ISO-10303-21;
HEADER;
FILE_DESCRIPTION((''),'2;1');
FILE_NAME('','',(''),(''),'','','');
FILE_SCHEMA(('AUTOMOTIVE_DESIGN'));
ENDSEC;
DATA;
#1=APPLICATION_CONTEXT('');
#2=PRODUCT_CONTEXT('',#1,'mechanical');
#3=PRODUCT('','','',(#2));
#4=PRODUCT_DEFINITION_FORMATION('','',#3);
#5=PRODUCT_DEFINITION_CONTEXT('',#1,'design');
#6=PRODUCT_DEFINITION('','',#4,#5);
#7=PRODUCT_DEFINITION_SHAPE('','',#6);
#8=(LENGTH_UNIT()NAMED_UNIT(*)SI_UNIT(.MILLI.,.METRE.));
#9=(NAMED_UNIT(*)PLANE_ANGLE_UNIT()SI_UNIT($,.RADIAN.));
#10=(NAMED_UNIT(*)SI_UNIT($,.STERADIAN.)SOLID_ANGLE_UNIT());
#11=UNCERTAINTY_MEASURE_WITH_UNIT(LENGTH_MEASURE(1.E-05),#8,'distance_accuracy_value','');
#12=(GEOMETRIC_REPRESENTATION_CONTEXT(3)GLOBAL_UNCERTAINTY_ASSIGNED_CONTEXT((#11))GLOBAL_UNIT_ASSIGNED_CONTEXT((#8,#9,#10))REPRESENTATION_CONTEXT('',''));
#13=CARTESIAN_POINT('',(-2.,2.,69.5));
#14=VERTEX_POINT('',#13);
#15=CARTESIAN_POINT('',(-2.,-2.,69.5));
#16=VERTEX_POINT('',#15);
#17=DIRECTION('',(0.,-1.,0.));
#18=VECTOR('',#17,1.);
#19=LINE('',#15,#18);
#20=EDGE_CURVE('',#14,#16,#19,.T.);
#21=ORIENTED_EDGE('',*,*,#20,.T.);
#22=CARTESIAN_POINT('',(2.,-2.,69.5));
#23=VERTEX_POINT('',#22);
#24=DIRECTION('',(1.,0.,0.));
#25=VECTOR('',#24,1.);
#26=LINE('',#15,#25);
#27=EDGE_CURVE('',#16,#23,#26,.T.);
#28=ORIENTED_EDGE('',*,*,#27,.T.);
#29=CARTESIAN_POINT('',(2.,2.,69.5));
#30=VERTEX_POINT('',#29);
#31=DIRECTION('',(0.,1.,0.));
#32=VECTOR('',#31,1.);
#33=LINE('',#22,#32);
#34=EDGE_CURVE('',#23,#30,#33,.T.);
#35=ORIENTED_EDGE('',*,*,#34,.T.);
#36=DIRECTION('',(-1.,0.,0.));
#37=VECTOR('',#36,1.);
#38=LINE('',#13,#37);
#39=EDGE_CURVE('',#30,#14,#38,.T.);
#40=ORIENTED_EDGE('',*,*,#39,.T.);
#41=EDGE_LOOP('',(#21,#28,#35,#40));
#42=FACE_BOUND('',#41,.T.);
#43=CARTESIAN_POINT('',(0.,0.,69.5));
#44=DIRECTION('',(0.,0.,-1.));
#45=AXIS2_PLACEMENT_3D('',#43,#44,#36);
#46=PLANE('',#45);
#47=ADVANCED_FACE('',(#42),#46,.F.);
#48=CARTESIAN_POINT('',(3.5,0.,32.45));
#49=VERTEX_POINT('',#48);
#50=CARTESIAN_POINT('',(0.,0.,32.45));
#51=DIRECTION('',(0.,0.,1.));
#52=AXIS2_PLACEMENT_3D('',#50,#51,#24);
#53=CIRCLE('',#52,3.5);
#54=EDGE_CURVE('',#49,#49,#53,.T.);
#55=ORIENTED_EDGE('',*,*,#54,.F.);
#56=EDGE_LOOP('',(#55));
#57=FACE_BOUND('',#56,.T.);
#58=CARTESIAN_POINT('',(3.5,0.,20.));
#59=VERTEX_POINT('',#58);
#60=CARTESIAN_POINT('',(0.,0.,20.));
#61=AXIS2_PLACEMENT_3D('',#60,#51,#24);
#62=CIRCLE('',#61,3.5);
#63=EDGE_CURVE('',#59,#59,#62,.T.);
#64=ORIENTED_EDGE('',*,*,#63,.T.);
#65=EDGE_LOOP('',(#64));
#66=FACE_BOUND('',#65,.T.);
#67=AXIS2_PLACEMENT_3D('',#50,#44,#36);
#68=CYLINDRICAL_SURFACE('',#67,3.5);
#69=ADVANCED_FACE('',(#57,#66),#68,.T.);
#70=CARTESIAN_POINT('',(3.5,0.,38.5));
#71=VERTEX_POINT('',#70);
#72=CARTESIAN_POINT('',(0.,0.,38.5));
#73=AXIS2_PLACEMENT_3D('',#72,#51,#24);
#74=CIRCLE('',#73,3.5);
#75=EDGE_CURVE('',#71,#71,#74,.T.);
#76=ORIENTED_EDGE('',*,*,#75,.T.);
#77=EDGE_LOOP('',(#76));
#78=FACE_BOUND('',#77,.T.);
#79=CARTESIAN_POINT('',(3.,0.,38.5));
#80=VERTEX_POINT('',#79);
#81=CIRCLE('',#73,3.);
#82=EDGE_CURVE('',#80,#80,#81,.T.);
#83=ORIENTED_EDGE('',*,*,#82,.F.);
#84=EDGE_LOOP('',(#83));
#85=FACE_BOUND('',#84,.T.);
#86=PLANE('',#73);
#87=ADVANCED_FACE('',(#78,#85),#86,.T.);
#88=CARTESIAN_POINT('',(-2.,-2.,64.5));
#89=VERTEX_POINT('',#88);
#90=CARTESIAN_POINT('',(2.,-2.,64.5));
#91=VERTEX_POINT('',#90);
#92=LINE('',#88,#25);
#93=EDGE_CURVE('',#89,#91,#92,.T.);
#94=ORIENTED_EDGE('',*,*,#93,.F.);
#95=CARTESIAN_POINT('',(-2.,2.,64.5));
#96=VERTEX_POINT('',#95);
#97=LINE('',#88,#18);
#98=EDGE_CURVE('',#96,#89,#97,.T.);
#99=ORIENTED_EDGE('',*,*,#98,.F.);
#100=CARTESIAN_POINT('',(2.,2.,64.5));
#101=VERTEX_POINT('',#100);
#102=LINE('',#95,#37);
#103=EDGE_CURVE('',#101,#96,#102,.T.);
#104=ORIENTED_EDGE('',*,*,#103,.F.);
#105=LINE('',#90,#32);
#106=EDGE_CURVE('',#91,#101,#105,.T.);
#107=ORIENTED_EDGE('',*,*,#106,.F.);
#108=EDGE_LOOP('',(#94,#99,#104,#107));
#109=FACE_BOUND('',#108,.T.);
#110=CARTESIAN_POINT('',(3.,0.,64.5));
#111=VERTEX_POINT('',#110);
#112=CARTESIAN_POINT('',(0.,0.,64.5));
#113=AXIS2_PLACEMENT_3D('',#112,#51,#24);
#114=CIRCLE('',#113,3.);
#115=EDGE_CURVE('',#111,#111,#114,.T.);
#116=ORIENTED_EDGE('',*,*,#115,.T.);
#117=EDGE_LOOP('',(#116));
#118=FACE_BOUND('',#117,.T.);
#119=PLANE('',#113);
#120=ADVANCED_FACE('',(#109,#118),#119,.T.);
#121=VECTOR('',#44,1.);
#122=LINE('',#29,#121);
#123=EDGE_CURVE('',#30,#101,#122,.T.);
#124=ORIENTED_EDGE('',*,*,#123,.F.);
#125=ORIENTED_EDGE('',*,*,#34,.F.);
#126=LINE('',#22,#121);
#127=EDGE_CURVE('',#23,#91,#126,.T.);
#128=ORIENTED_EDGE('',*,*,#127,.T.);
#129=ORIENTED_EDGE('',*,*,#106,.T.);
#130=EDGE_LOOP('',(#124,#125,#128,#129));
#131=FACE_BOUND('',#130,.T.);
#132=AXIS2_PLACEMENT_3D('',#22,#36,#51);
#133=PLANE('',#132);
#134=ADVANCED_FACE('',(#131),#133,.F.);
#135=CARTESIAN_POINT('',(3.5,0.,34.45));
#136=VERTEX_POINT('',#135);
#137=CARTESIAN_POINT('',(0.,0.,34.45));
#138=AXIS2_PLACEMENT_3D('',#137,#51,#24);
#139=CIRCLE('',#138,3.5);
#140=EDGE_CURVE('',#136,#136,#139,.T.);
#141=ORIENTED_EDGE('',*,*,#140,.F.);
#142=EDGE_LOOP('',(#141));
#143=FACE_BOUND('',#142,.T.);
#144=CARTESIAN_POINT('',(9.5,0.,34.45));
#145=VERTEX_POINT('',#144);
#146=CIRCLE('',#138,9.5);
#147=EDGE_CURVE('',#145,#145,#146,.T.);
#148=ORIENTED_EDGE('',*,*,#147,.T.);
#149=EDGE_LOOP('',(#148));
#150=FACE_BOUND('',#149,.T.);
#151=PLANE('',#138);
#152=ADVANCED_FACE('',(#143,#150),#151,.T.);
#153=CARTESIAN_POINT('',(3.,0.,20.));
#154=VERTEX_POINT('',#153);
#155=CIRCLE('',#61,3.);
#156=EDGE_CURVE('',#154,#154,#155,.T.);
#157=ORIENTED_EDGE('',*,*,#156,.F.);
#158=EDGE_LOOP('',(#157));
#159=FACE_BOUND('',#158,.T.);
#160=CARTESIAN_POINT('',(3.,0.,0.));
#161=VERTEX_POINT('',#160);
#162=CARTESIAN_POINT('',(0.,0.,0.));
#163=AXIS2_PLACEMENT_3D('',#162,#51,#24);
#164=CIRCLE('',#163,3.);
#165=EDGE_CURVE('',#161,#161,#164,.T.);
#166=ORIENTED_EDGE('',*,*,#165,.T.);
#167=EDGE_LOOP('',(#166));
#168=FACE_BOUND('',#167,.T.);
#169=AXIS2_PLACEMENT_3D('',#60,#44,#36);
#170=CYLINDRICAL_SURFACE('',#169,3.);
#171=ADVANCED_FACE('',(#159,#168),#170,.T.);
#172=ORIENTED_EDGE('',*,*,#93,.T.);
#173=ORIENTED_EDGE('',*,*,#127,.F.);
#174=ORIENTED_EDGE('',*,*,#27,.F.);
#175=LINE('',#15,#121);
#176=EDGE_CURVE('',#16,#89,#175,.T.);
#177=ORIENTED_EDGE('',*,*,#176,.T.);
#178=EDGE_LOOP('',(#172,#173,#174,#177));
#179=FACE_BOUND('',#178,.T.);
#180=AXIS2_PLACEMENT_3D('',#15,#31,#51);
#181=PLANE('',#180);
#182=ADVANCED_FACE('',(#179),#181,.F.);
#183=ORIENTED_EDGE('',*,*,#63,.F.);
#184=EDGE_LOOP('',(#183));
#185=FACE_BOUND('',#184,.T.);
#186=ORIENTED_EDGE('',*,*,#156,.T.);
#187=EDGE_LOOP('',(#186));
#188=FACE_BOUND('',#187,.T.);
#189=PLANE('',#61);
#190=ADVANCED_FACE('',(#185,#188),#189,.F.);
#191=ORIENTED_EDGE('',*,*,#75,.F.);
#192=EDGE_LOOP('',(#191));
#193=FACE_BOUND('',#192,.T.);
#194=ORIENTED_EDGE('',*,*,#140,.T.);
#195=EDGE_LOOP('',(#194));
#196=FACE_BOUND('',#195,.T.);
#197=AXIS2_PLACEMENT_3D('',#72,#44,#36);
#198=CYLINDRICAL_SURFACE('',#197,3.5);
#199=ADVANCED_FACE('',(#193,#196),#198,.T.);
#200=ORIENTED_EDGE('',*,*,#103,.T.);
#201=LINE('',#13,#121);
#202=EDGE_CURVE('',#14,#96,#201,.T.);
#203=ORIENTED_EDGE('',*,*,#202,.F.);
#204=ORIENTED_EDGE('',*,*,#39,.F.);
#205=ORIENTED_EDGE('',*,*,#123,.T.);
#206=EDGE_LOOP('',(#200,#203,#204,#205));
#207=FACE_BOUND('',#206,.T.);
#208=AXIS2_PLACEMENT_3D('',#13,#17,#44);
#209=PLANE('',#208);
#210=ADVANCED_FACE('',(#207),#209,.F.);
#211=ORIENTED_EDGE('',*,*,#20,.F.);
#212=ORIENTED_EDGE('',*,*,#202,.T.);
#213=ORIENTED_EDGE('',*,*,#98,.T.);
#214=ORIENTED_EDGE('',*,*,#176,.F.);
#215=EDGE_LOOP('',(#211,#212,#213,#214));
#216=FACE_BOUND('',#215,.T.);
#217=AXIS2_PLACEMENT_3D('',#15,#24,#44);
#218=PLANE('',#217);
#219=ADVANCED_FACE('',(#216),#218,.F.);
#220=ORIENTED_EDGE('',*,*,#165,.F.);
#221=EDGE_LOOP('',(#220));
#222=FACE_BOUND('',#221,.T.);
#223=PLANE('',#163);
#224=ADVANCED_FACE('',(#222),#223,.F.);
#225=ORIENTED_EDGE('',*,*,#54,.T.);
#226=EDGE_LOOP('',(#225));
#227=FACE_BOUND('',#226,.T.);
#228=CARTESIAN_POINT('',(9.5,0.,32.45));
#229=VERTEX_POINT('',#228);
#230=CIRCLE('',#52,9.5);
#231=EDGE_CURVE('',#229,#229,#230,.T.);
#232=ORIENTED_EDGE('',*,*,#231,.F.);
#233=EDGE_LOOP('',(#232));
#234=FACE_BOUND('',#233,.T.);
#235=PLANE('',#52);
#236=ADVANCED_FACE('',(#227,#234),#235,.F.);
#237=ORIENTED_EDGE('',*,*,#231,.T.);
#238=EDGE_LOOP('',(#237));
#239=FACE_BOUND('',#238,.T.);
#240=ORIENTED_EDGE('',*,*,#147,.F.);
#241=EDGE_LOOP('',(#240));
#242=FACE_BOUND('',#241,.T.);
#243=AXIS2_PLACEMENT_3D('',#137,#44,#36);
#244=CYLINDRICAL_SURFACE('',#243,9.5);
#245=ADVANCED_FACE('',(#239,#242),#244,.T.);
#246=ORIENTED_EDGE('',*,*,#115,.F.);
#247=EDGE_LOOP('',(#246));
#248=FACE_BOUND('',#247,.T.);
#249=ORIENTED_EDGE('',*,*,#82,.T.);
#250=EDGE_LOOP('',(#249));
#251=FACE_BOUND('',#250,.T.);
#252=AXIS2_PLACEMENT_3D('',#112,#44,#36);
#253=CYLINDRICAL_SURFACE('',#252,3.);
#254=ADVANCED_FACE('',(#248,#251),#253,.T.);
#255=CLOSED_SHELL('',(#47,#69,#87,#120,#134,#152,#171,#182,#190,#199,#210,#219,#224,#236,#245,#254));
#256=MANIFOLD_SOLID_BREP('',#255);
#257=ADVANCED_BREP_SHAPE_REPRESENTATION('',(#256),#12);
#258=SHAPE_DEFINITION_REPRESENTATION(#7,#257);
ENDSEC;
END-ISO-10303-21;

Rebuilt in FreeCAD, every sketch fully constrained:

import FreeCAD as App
import Part
import Sketcher

doc = App.newDocument("Part")
body = doc.addObject("PartDesign::Body", "Body")

sketch1 = body.newObject("Sketcher::SketchObject", "Sketch")
sketch1.AttachmentSupport = (doc.getObject("XY_Plane"), [""])
sketch1.MapMode = "FlatFace"
sketch1.addGeometry(Part.Circle(App.Vector(0, 0, 0), App.Vector(0, 0, 1), 3), False)
sketch1.addConstraint(Sketcher.Constraint("Coincident", 0, 3, -1, 1))
sketch1.addConstraint(Sketcher.Constraint("Diameter", 0, 6.0))
pad1 = body.newObject("PartDesign::Pad", "Pad")
pad1.Profile = sketch1
pad1.Length = 20

sketch2 = body.newObject("Sketcher::SketchObject", "Sketch001")
sketch2.AttachmentSupport = (doc.getObject("XY_Plane"), [""])
sketch2.MapMode = "FlatFace"
sketch2.AttachmentOffset = App.Placement(App.Vector(0, 0, 20), App.Rotation())
sketch2.addGeometry(Part.Circle(App.Vector(0, 0, 0), App.Vector(0, 0, 1), 3.5), False)
sketch2.addConstraint(Sketcher.Constraint("Coincident", 0, 3, -1, 1))
sketch2.addConstraint(Sketcher.Constraint("Diameter", 0, 7.0))
pad2 = body.newObject("PartDesign::Pad", "Pad001")
pad2.Profile = sketch2
pad2.Length = 12.45

sketch3 = body.newObject("Sketcher::SketchObject", "Sketch002")
sketch3.AttachmentSupport = (doc.getObject("XY_Plane"), [""])
sketch3.MapMode = "FlatFace"
sketch3.AttachmentOffset = App.Placement(App.Vector(0, 0, 32.45), App.Rotation())
sketch3.addGeometry(Part.Circle(App.Vector(0, 0, 0), App.Vector(0, 0, 1), 10), False)
sketch3.addConstraint(Sketcher.Constraint("Coincident", 0, 3, -1, 1))
sketch3.addConstraint(Sketcher.Constraint("Diameter", 0, 19.0))
pad3 = body.newObject("PartDesign::Pad", "Pad002")
pad3.Profile = sketch3
pad3.Length = 2

sketch4 = body.newObject("Sketcher::SketchObject", "Sketch003")
sketch4.AttachmentSupport = (doc.getObject("XY_Plane"), [""])
sketch4.MapMode = "FlatFace"
sketch4.AttachmentOffset = App.Placement(App.Vector(0, 0, 34.45), App.Rotation())
sketch4.addGeometry(Part.Circle(App.Vector(0, 0, 0), App.Vector(0, 0, 1), 3.5), False)
sketch4.addConstraint(Sketcher.Constraint("Coincident", 0, 3, -1, 1))
sketch4.addConstraint(Sketcher.Constraint("Diameter", 0, 7.0))
pad4 = body.newObject("PartDesign::Pad", "Pad003")
pad4.Profile = sketch4
pad4.Length = 4.05

sketch5 = body.newObject("Sketcher::SketchObject", "Sketch004")
sketch5.AttachmentSupport = (doc.getObject("XY_Plane"), [""])
sketch5.MapMode = "FlatFace"
sketch5.AttachmentOffset = App.Placement(App.Vector(0, 0, 38.5), App.Rotation())
sketch5.addGeometry(Part.Circle(App.Vector(0, 0, 0), App.Vector(0, 0, 1), 3), False)
sketch5.addConstraint(Sketcher.Constraint("Coincident", 0, 3, -1, 1))
sketch5.addConstraint(Sketcher.Constraint("Diameter", 0, 6.0))
pad5 = body.newObject("PartDesign::Pad", "Pad004")
pad5.Profile = sketch5
pad5.Length = 26

sketch6 = body.newObject("Sketcher::SketchObject", "Sketch005")
sketch6.AttachmentSupport = (doc.getObject("XY_Plane"), [""])
sketch6.MapMode = "FlatFace"
sketch6.AttachmentOffset = App.Placement(App.Vector(0, 0, 64.5), App.Rotation())
sketch6.addGeometry(Part.LineSegment(App.Vector(-2, 2, 0), App.Vector(-2, -2, 0)), False)
sketch6.addGeometry(Part.LineSegment(App.Vector(-2, -2, 0), App.Vector(2, -2, 0)), False)
sketch6.addGeometry(Part.LineSegment(App.Vector(2, -2, 0), App.Vector(2, 2, 0)), False)
sketch6.addGeometry(Part.LineSegment(App.Vector(2, 2, 0), App.Vector(-2, 2, 0)), False)
sketch6.addConstraint(Sketcher.Constraint("Coincident", 0, 2, 1, 1))
sketch6.addConstraint(Sketcher.Constraint("Coincident", 1, 2, 2, 1))
sketch6.addConstraint(Sketcher.Constraint("Coincident", 2, 2, 3, 1))
sketch6.addConstraint(Sketcher.Constraint("Coincident", 3, 2, 0, 1))
sketch6.addConstraint(Sketcher.Constraint("Vertical", 0))
sketch6.addConstraint(Sketcher.Constraint("Horizontal", 1))
sketch6.addConstraint(Sketcher.Constraint("Vertical", 2))
sketch6.addConstraint(Sketcher.Constraint("Horizontal", 3))
sketch6.addConstraint(Sketcher.Constraint("Symmetric", 0, 2, 2, 2, -1, 1))
sketch6.addConstraint(Sketcher.Constraint("Equal", 3, 0))
sketch6.addConstraint(Sketcher.Constraint("DistanceX", 1, 1, 1, 2, 4.0))
pad6 = body.newObject("PartDesign::Pad", "Pad005")
pad6.Profile = sketch6
pad6.Length = 5

doc.recompute()
